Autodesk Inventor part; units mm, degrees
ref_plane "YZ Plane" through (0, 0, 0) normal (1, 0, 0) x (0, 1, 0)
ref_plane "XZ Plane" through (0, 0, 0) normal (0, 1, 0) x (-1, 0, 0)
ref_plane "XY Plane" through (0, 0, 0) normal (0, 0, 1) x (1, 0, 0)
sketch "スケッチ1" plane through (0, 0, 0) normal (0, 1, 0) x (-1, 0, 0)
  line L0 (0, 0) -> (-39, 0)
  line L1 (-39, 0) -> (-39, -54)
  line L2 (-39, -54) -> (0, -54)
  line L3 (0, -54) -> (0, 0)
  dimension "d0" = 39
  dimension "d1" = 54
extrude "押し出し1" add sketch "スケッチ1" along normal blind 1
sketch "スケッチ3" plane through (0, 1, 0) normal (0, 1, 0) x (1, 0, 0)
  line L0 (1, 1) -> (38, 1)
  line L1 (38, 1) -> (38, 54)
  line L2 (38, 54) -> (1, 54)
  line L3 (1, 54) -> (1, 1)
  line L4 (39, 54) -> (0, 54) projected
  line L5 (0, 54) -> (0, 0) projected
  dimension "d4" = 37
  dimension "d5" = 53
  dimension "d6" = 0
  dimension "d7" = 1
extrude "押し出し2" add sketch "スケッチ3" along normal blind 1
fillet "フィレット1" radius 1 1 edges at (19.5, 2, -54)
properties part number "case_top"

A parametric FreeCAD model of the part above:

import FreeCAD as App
import Part
import Sketcher


def edges_at(feature, points):
    """Names of the edges that pass closest to the given points."""
    edges = feature.Shape.Edges
    near = lambda p: min(range(len(edges)), key=lambda i: edges[i].distToShape(Part.Vertex(*p))[0])
    return sorted({f"Edge{near(p) + 1}" for p in points})

doc = App.newDocument("Part")
body = doc.addObject("PartDesign::Body", "Body")

sketch1 = body.newObject("Sketcher::SketchObject", "Sketch")
sketch1.AttachmentSupport = (doc.getObject("XZ_Plane"), [""])
sketch1.MapMode = "FlatFace"
sketch1.addGeometry([
    Part.LineSegment(App.Vector(0, -54, 0), App.Vector(0, 0, 0)),
    Part.LineSegment(App.Vector(0, 0, 0), App.Vector(39, 0, 0)),
    Part.LineSegment(App.Vector(39, 0, 0), App.Vector(39, -54, 0)),
    Part.LineSegment(App.Vector(39, -54, 0), App.Vector(0, -54, 0)),
], False)
sketch1.addConstraint([
    Sketcher.Constraint("Coincident", 0, 2, 1, 1),
    Sketcher.Constraint("Coincident", 1, 2, 2, 1),
    Sketcher.Constraint("Coincident", 2, 2, 3, 1),
    Sketcher.Constraint("Coincident", 3, 2, 0, 1),
    Sketcher.Constraint("Vertical", 0),
    Sketcher.Constraint("Horizontal", 1),
    Sketcher.Constraint("Vertical", 2),
    Sketcher.Constraint("Horizontal", 3),
    Sketcher.Constraint("Coincident", 0, 2, -1, 1),
    Sketcher.Constraint("DistanceX", 1, 1, 1, 2, 39.0),
    Sketcher.Constraint("DistanceY", 0, 1, 0, 2, 54.0),
])
pad1 = body.newObject("PartDesign::Pad", "Pad")
pad1.Profile = sketch1
pad1.Length = 1
pad1.Reversed = True

sketch2 = body.newObject("Sketcher::SketchObject", "Sketch001")
sketch2.AttachmentSupport = (doc.getObject("XZ_Plane"), [""])
sketch2.MapMode = "FlatFace"
sketch2.AttachmentOffset = App.Placement(App.Vector(0, 0, -1), App.Rotation())
sketch2.addGeometry([
    Part.LineSegment(App.Vector(1, -54, 0), App.Vector(1, -1, 0)),
    Part.LineSegment(App.Vector(1, -1, 0), App.Vector(38, -1, 0)),
    Part.LineSegment(App.Vector(38, -1, 0), App.Vector(38, -54, 0)),
    Part.LineSegment(App.Vector(38, -54, 0), App.Vector(1, -54, 0)),
], False)
sketch2.addConstraint([
    Sketcher.Constraint("Coincident", 0, 2, 1, 1),
    Sketcher.Constraint("Coincident", 1, 2, 2, 1),
    Sketcher.Constraint("Coincident", 2, 2, 3, 1),
    Sketcher.Constraint("Coincident", 3, 2, 0, 1),
    Sketcher.Constraint("Vertical", 0),
    Sketcher.Constraint("Horizontal", 1),
    Sketcher.Constraint("Vertical", 2),
    Sketcher.Constraint("Horizontal", 3),
    Sketcher.Constraint("DistanceX", 1, 1, 1, 2, 37.0),
    Sketcher.Constraint("DistanceY", 0, 1, 0, 2, 53.0),
    Sketcher.Constraint("DistanceX", -1, 1, 0, 2, 1.0),
    Sketcher.Constraint("DistanceY", 0, 2, -1, 1, 1.0),
])
pad2 = body.newObject("PartDesign::Pad", "Pad001")
pad2.Profile = sketch2
pad2.Length = 1
pad2.Reversed = True
doc.recompute()

fillet = body.newObject("PartDesign::Fillet", "Fillet")
fillet.Base = (pad2, edges_at(pad2, [(19.5, 2, -54)]))
fillet.Radius = 1

doc.recompute()
